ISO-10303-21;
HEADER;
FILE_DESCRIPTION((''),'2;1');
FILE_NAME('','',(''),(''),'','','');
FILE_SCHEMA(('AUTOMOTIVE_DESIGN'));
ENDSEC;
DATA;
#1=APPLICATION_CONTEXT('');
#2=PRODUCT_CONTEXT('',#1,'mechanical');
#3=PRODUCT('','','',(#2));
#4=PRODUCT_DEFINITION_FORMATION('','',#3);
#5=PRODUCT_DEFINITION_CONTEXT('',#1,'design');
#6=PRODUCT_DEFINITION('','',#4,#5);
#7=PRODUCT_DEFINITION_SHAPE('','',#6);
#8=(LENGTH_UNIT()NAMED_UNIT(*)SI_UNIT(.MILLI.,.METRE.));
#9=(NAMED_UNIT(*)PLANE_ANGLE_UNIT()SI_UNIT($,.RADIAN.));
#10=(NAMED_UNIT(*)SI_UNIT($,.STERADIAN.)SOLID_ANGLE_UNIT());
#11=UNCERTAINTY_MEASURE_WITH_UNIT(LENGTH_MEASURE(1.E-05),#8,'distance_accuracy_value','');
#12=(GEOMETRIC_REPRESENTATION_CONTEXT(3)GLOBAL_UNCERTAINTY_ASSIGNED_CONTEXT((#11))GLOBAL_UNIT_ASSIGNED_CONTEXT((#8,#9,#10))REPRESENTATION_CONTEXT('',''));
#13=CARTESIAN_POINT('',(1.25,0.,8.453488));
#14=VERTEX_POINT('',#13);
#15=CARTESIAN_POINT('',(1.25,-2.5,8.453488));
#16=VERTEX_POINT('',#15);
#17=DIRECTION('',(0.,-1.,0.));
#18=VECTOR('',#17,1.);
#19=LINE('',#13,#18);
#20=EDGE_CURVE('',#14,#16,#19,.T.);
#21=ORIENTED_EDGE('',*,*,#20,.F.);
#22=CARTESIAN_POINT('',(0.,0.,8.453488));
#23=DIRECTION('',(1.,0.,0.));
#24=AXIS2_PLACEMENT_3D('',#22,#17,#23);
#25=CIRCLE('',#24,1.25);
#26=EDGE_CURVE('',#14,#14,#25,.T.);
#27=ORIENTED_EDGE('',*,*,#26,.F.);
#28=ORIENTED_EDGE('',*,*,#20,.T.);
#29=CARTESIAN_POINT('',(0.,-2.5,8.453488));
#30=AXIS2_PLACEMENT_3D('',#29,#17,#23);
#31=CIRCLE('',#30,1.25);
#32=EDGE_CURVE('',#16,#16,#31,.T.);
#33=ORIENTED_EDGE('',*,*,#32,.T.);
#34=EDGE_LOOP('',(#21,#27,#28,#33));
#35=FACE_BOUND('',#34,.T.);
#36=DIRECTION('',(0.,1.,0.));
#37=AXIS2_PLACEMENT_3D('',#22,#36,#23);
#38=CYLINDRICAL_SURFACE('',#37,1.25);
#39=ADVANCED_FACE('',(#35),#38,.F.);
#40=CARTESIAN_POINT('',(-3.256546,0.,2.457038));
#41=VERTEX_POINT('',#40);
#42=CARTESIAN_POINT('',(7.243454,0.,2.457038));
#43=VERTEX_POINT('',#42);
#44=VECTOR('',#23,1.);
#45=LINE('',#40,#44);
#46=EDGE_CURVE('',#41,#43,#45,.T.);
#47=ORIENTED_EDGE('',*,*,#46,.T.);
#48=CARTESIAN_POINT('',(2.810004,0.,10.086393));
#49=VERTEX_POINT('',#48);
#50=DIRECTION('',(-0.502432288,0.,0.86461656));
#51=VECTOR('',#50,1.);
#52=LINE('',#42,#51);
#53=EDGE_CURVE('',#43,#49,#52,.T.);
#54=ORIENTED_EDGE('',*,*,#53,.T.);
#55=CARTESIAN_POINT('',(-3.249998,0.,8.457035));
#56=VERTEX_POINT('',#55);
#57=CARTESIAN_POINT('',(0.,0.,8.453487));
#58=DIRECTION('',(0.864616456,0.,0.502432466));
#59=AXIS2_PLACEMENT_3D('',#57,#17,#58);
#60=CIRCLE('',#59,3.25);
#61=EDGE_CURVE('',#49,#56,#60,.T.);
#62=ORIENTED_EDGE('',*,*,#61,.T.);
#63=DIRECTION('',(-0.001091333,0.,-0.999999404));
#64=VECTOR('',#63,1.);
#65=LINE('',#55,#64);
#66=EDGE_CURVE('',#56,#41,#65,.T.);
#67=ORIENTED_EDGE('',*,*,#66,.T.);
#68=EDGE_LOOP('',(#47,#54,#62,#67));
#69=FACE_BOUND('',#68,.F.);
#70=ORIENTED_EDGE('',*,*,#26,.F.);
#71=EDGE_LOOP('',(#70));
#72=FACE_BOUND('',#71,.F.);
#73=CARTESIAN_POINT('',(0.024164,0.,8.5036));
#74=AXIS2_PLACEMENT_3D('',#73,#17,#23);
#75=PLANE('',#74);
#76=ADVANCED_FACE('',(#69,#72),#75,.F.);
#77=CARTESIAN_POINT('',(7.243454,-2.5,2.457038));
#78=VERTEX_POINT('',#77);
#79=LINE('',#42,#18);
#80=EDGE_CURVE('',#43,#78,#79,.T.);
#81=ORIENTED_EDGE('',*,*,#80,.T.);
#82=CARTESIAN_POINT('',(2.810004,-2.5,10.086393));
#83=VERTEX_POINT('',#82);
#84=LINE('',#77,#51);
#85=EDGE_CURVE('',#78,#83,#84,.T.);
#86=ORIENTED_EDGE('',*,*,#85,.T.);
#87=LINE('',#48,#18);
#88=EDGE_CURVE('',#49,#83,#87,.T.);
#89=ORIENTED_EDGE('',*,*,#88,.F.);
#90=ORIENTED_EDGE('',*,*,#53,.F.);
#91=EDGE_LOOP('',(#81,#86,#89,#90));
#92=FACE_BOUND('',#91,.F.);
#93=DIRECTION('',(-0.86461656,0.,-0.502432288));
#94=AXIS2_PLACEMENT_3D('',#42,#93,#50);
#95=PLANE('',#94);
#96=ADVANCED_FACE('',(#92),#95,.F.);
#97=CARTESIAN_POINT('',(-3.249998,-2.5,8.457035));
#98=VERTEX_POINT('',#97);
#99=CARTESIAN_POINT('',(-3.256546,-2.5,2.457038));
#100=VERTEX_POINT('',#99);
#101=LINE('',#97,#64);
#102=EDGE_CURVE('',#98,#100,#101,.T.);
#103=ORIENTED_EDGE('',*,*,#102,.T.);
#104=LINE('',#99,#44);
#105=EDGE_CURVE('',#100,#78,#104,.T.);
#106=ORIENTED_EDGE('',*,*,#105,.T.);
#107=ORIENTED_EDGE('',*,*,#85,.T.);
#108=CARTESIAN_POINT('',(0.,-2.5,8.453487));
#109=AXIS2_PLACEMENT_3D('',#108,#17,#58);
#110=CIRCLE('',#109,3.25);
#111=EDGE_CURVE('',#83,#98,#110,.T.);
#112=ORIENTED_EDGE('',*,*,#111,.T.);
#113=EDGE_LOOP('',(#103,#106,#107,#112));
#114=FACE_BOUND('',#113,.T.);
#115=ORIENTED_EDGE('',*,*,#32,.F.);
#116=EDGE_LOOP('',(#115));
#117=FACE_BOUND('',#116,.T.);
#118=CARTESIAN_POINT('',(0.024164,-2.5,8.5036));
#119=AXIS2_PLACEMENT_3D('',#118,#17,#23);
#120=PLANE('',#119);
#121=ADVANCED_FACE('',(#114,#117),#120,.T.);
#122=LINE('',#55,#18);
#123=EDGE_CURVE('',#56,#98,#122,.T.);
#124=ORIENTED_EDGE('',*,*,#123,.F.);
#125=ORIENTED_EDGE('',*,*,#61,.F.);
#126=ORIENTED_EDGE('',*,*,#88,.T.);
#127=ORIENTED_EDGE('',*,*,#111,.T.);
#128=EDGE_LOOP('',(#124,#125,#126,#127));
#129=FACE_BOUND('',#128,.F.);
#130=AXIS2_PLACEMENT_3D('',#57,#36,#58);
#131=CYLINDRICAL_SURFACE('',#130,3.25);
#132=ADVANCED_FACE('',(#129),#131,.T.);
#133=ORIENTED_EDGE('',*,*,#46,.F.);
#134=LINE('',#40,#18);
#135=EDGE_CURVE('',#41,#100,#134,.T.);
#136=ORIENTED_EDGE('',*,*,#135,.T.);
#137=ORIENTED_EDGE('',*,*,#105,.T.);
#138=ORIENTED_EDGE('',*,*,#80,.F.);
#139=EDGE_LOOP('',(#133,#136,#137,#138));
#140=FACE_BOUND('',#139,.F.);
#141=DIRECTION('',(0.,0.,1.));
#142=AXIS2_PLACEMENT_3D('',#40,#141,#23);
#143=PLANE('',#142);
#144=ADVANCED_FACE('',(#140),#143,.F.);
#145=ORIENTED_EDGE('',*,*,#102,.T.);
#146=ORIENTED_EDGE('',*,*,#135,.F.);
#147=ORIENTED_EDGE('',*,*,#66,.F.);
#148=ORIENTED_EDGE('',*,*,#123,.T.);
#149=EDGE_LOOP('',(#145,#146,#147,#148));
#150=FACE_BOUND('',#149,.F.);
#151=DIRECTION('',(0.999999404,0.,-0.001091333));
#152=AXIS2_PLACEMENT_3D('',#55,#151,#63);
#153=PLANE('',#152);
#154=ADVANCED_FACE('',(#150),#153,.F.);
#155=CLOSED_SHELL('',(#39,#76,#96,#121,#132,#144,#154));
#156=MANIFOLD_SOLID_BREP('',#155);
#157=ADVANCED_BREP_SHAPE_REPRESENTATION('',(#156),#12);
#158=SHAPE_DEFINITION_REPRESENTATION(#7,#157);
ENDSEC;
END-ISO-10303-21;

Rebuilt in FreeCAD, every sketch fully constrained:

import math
import FreeCAD as App
import Part
import Sketcher

doc = App.newDocument("Part")
body = doc.addObject("PartDesign::Body", "Body")

# Sketch on XZ plane
sketch1 = body.newObject("Sketcher::SketchObject", "Sketch")
sketch1.AttachmentSupport = (doc.getObject("XZ_Plane"), [""])
sketch1.MapMode = "FlatFace"
sketch1.addGeometry([
    Part.ArcOfCircle(Part.Circle(App.Vector(0, 8.5, 0), App.Vector(0, 0, 1), 3.3), math.radians(30), math.radians(180)),  # 0
    Part.LineSegment(App.Vector(-3.2, 8.5, 0), App.Vector(-3.3, 2.5, 0)),  # 1
    Part.LineSegment(App.Vector(-3.3, 2.5, 0), App.Vector(7.2, 2.5, 0)),  # 2
    Part.LineSegment(App.Vector(7.2, 2.5, 0), App.Vector(2.8, 10.1, 0)),  # 3
    Part.Circle(App.Vector(0, 8.5, 0), App.Vector(0, 0, 1), 1.2),  # 4
], False)
sketch1.addConstraint([
    Sketcher.Constraint("Tangent", 0, 2, 1, 1),
    Sketcher.Constraint("Coincident", 1, 2, 2, 1),
    Sketcher.Constraint("Coincident", 2, 2, 3, 1),
    Sketcher.Constraint("Tangent", 3, 2, 0, 1),
    Sketcher.Constraint("Horizontal", 2),
    Sketcher.Constraint("Coincident", 4, 3, 0, 3),
    Sketcher.Constraint("PointOnObject", 0, 3, -2),
    Sketcher.Constraint("Diameter", 4, 2.5),
    Sketcher.Constraint("Radius", 0, 3.25),
    Sketcher.Constraint("Distance", 1, 6.000001),
    Sketcher.Constraint("DistanceX", 2, 1, 2, 2, 10.5),
    Sketcher.Constraint("DistanceX", 0, 2, 3, 2, 6.060002),
    Sketcher.Constraint("DistanceY", -1, 1, 0, 3, 8.453487),
])
pad1 = body.newObject("PartDesign::Pad", "Pad")
pad1.Profile = sketch1
pad1.Length = 2.5

doc.recompute()
